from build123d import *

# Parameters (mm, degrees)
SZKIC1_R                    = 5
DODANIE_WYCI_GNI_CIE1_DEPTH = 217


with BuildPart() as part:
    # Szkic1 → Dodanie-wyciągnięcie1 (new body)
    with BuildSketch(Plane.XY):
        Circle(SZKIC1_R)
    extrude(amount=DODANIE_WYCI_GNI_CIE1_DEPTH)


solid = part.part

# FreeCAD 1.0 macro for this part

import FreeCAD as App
import Part
import Sketcher

V = App.Vector
Q = App.Units.Quantity

doc = App.newDocument("Part")
params = doc.addObject("Spreadsheet::Sheet", "Params")
for row, (alias, value) in enumerate([
    ("sketch1_diameter", "10 mm"),
    ("pad1_length", "217 mm"),
], start=1):
    params.set(f"A{row}", alias)
    params.set(f"B{row}", "=" + value)
    params.setAlias(f"B{row}", alias)

body = doc.addObject("PartDesign::Body", "Body")

sketch1 = body.newObject("Sketcher::SketchObject", "Sketch")
sketch1.AttachmentSupport = (doc.getObject("XY_Plane"), [""])
sketch1.MapMode = "FlatFace"
sketch1.addGeometry(Part.Circle(V(0, 0, 0), V(0, 0, 1), 5), False)
sketch1.addConstraint([
    Sketcher.Constraint("Coincident", 0, 3, -1, 1),
    Sketcher.Constraint("Diameter", 0, Q("10 mm")),
])
sketch1.setExpression("Constraints[1]", "Params.sketch1_diameter")
pad1 = body.newObject("PartDesign::Pad", "Pad")
pad1.Profile = sketch1
pad1.setExpression("Length", "Params.pad1_length")

doc.recompute()
